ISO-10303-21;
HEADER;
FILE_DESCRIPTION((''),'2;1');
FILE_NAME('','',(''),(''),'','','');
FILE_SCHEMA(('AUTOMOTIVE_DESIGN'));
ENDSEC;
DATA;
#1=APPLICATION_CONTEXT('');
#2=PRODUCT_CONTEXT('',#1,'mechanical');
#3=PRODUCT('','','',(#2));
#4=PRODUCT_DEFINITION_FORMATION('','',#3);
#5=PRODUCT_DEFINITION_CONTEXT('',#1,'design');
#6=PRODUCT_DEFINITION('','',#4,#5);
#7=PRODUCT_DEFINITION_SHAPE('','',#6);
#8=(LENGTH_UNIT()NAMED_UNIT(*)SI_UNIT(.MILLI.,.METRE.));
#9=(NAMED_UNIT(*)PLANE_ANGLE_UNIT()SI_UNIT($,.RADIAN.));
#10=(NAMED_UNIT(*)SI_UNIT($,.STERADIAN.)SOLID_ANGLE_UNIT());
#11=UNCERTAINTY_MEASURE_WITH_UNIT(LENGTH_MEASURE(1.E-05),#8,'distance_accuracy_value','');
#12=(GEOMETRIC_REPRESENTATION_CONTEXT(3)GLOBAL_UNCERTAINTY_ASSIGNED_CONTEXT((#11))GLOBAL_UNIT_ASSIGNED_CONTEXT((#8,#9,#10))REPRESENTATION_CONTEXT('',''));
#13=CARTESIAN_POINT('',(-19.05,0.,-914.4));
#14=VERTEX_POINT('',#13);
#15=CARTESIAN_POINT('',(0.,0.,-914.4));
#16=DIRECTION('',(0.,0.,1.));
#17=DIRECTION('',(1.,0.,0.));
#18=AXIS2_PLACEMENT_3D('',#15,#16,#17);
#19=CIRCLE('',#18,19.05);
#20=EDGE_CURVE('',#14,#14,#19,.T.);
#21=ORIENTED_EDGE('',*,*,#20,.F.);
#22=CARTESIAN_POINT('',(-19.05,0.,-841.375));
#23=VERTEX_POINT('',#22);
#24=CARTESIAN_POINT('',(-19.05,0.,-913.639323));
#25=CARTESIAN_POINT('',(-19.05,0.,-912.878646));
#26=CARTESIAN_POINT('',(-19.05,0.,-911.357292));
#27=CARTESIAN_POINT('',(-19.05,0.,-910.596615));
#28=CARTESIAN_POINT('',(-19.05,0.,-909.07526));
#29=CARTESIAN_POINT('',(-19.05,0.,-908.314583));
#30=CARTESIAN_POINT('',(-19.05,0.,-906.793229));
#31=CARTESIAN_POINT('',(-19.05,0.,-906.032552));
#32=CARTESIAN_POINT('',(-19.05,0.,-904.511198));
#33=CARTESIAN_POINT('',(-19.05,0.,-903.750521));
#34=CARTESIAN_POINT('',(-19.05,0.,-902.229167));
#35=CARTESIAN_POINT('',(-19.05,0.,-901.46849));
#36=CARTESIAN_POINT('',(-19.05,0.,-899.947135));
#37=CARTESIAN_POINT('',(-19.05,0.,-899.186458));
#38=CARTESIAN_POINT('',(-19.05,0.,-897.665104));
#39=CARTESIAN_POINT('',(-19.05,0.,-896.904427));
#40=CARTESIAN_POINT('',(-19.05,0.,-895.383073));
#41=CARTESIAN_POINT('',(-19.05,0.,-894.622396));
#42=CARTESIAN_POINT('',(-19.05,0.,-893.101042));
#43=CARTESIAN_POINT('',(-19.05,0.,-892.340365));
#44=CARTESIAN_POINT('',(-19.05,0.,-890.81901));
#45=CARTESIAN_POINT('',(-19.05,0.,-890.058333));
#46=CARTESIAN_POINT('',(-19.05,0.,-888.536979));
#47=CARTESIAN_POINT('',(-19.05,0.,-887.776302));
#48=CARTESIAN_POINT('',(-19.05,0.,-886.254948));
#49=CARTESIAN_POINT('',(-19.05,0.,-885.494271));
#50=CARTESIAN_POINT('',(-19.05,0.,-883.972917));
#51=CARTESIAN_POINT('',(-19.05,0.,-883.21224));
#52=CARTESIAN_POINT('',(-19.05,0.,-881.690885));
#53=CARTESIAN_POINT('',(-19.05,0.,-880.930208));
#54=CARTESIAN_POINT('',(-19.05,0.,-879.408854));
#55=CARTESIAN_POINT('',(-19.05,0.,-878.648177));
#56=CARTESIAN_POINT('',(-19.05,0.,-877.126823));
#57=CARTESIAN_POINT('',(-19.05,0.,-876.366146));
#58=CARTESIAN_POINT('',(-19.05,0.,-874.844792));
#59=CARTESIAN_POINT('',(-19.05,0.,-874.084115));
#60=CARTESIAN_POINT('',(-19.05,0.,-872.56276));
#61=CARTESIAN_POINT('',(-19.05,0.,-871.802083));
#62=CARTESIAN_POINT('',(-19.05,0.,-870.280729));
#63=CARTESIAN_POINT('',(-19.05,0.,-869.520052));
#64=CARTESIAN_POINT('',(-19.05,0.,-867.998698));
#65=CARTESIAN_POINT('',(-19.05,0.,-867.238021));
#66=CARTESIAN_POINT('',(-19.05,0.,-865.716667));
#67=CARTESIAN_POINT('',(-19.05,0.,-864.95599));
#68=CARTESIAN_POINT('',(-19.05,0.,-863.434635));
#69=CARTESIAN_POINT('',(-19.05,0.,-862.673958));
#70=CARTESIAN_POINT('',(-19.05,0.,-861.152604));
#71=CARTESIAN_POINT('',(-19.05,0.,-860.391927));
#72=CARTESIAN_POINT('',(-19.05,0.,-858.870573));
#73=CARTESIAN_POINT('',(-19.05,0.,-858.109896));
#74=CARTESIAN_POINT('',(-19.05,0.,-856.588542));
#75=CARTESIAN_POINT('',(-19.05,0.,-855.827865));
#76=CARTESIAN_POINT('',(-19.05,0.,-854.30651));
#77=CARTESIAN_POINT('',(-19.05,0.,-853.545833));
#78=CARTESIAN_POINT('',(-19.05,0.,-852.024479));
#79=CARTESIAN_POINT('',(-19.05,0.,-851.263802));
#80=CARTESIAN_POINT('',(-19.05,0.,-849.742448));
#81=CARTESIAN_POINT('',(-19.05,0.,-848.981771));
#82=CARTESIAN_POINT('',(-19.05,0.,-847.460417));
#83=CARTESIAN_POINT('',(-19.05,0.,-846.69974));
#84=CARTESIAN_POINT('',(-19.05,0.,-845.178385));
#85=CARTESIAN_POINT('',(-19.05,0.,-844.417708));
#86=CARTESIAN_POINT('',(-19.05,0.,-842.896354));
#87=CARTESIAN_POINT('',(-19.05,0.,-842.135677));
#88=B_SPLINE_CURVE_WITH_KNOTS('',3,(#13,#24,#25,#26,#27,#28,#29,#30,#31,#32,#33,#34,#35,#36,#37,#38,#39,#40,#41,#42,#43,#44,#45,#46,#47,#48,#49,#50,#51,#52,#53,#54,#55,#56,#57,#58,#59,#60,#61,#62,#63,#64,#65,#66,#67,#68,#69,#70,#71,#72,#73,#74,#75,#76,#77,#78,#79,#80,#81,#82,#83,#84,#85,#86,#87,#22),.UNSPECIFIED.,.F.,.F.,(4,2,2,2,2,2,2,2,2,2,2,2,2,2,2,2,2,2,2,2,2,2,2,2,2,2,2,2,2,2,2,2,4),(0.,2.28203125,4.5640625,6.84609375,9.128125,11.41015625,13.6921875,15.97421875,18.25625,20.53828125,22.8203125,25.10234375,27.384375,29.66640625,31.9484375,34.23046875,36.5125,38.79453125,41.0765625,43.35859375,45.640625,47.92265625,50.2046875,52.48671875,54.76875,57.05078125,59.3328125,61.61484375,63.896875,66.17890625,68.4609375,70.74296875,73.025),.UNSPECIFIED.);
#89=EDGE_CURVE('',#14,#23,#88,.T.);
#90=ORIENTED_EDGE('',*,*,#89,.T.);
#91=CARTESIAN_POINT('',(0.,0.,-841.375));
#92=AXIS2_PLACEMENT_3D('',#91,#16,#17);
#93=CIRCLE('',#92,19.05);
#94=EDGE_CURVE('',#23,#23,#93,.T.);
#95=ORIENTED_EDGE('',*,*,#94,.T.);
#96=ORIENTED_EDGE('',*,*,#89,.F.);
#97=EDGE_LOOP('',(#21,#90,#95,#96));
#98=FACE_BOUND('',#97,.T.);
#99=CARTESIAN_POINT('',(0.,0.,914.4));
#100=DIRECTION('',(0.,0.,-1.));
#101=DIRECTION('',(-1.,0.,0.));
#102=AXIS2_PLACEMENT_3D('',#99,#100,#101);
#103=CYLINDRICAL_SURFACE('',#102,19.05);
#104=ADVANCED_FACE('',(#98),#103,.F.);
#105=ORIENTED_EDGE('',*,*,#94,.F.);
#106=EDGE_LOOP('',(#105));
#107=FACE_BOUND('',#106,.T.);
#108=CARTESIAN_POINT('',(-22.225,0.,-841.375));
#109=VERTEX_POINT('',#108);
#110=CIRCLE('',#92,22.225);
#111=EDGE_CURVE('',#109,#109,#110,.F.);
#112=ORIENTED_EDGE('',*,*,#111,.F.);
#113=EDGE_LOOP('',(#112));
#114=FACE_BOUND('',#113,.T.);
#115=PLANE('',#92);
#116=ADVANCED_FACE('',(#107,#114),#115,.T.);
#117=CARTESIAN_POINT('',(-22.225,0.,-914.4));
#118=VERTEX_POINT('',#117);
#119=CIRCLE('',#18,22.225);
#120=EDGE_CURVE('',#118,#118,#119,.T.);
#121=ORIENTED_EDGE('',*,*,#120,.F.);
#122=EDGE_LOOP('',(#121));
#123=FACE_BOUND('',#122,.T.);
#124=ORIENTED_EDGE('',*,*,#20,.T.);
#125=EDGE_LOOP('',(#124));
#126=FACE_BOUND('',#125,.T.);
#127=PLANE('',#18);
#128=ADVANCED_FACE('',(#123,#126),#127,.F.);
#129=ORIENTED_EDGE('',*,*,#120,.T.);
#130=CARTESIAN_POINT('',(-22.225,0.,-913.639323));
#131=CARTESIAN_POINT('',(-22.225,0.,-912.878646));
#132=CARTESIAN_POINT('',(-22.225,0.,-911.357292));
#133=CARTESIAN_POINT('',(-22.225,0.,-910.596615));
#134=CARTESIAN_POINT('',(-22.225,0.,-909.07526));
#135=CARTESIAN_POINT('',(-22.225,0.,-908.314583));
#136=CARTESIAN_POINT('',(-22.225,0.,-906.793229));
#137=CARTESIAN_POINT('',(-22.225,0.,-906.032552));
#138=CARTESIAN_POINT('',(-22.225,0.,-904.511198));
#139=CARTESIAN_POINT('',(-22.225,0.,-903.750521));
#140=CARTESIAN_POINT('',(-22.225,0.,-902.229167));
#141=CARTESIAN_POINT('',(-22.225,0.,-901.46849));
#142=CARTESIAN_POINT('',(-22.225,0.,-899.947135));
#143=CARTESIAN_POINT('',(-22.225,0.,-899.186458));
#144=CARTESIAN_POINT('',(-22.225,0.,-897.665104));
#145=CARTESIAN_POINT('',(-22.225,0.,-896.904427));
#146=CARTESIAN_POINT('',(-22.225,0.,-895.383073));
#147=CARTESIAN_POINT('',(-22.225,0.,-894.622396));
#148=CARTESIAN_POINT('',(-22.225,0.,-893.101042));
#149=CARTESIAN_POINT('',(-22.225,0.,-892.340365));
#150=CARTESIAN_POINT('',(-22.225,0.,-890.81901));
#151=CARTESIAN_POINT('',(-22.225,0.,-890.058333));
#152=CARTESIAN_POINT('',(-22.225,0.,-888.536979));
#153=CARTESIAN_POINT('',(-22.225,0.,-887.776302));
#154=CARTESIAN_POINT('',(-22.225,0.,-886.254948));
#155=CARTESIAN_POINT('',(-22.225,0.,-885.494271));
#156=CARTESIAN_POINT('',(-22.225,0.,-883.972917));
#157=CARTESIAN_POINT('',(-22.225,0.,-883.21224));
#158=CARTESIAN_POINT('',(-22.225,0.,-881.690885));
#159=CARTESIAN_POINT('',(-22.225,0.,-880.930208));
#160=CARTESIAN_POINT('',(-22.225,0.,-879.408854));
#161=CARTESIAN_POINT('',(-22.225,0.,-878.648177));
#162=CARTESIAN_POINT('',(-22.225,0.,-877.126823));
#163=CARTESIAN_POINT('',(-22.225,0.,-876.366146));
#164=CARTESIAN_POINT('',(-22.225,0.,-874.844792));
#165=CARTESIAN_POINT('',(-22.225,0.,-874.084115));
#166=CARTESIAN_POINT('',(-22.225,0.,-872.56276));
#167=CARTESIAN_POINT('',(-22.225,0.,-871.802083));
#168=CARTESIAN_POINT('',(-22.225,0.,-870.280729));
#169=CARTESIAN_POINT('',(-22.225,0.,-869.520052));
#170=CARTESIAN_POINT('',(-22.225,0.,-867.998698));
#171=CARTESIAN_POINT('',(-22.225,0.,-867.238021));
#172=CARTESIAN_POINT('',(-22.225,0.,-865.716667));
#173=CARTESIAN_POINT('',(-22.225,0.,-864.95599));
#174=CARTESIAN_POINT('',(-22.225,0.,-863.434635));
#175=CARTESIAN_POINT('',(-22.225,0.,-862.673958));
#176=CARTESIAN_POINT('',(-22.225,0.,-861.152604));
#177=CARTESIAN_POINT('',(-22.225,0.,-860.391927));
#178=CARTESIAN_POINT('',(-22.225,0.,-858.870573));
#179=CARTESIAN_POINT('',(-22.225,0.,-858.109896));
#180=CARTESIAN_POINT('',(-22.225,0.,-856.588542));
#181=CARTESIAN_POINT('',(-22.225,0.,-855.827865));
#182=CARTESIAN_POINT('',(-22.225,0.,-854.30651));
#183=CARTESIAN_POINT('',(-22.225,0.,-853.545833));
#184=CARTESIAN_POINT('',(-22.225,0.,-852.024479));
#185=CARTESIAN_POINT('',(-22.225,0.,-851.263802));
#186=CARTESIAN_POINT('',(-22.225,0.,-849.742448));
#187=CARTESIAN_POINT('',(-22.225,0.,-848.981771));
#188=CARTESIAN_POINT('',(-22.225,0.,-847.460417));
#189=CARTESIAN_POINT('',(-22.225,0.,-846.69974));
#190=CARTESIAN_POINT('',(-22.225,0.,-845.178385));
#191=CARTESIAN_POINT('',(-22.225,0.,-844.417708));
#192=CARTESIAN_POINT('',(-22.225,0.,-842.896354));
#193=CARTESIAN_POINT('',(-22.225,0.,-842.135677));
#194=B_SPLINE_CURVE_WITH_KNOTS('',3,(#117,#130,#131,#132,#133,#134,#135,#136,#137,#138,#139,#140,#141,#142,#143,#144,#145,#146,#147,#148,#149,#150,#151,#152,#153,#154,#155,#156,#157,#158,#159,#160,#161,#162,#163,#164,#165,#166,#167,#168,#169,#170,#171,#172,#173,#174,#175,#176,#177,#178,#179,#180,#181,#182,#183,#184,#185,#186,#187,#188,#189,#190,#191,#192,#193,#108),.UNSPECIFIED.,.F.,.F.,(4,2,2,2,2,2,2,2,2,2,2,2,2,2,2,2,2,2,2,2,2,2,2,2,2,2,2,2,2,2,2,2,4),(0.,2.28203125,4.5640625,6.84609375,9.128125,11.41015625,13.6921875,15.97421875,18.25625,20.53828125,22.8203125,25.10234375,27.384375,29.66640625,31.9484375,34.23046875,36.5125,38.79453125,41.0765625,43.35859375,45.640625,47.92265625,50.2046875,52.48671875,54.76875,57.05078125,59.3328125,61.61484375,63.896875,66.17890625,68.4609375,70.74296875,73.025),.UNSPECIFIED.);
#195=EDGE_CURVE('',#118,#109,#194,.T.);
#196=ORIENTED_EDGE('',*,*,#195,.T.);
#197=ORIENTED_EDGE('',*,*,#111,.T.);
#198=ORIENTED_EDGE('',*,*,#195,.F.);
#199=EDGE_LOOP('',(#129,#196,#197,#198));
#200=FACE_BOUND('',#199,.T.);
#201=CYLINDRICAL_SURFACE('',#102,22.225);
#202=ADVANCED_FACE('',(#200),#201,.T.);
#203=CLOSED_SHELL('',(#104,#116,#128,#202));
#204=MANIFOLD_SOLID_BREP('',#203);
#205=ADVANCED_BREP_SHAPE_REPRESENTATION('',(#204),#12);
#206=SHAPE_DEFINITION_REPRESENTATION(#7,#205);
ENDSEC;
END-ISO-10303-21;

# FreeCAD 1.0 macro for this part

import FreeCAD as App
import Part
import Sketcher
from FreeCAD import Vector
Q = App.Units.Quantity

doc = App.newDocument("Part")
body = doc.addObject("PartDesign::Body", "Body")

sketch1 = body.newObject("Sketcher::SketchObject", "Sketch")
sketch1.AttachmentSupport = (doc.getObject("XY_Plane"), [""])
sketch1.MapMode = "FlatFace"
sketch1.addGeometry(Part.Circle(Vector(0, 0, 0), Vector(0, 0, 1), 22.225), False)
sketch1.addGeometry(Part.Circle(Vector(0, 0, 0), Vector(0, 0, 1), 19.05), False)
sketch1.addConstraint(Sketcher.Constraint("Coincident", 0, 3, -1, 1))
sketch1.addConstraint(Sketcher.Constraint("Coincident", 1, 3, -1, 1))
sketch1.addConstraint(Sketcher.Constraint("Diameter", 1, Q("1.5 in")))
sketch1.addConstraint(Sketcher.Constraint("Diameter", 0, Q("1.75 in")))
pad1 = body.newObject("PartDesign::Pad", "Pad")
pad1.Profile = sketch1
pad1.Type = "TwoLengths"
pad1.Length = Q("36 in")
pad1.Length2 = Q("36 in")

sketch2 = body.newObject("Sketcher::SketchObject", "Sketch001")
sketch2.AttachmentSupport = (doc.getObject("XY_Plane"), [""])
sketch2.MapMode = "FlatFace"
sketch2.AttachmentOffset = App.Placement(Vector(0, 0, 36 * 25.4), App.Rotation())
sketch2.addGeometry(Part.Circle(Vector(0, 0, 0), Vector(0, 0, 1), 22.225), False)
sketch2.addConstraint(Sketcher.Constraint("Coincident", 0, 3, -1, 1))
sketch2.addConstraint(Sketcher.Constraint("Diameter", 0, Q("1.75 in")))
pocket1 = body.newObject("PartDesign::Pocket", "Pocket")
pocket1.Profile = sketch2
pocket1.Length = Q("69.125 in")

doc.recompute()
